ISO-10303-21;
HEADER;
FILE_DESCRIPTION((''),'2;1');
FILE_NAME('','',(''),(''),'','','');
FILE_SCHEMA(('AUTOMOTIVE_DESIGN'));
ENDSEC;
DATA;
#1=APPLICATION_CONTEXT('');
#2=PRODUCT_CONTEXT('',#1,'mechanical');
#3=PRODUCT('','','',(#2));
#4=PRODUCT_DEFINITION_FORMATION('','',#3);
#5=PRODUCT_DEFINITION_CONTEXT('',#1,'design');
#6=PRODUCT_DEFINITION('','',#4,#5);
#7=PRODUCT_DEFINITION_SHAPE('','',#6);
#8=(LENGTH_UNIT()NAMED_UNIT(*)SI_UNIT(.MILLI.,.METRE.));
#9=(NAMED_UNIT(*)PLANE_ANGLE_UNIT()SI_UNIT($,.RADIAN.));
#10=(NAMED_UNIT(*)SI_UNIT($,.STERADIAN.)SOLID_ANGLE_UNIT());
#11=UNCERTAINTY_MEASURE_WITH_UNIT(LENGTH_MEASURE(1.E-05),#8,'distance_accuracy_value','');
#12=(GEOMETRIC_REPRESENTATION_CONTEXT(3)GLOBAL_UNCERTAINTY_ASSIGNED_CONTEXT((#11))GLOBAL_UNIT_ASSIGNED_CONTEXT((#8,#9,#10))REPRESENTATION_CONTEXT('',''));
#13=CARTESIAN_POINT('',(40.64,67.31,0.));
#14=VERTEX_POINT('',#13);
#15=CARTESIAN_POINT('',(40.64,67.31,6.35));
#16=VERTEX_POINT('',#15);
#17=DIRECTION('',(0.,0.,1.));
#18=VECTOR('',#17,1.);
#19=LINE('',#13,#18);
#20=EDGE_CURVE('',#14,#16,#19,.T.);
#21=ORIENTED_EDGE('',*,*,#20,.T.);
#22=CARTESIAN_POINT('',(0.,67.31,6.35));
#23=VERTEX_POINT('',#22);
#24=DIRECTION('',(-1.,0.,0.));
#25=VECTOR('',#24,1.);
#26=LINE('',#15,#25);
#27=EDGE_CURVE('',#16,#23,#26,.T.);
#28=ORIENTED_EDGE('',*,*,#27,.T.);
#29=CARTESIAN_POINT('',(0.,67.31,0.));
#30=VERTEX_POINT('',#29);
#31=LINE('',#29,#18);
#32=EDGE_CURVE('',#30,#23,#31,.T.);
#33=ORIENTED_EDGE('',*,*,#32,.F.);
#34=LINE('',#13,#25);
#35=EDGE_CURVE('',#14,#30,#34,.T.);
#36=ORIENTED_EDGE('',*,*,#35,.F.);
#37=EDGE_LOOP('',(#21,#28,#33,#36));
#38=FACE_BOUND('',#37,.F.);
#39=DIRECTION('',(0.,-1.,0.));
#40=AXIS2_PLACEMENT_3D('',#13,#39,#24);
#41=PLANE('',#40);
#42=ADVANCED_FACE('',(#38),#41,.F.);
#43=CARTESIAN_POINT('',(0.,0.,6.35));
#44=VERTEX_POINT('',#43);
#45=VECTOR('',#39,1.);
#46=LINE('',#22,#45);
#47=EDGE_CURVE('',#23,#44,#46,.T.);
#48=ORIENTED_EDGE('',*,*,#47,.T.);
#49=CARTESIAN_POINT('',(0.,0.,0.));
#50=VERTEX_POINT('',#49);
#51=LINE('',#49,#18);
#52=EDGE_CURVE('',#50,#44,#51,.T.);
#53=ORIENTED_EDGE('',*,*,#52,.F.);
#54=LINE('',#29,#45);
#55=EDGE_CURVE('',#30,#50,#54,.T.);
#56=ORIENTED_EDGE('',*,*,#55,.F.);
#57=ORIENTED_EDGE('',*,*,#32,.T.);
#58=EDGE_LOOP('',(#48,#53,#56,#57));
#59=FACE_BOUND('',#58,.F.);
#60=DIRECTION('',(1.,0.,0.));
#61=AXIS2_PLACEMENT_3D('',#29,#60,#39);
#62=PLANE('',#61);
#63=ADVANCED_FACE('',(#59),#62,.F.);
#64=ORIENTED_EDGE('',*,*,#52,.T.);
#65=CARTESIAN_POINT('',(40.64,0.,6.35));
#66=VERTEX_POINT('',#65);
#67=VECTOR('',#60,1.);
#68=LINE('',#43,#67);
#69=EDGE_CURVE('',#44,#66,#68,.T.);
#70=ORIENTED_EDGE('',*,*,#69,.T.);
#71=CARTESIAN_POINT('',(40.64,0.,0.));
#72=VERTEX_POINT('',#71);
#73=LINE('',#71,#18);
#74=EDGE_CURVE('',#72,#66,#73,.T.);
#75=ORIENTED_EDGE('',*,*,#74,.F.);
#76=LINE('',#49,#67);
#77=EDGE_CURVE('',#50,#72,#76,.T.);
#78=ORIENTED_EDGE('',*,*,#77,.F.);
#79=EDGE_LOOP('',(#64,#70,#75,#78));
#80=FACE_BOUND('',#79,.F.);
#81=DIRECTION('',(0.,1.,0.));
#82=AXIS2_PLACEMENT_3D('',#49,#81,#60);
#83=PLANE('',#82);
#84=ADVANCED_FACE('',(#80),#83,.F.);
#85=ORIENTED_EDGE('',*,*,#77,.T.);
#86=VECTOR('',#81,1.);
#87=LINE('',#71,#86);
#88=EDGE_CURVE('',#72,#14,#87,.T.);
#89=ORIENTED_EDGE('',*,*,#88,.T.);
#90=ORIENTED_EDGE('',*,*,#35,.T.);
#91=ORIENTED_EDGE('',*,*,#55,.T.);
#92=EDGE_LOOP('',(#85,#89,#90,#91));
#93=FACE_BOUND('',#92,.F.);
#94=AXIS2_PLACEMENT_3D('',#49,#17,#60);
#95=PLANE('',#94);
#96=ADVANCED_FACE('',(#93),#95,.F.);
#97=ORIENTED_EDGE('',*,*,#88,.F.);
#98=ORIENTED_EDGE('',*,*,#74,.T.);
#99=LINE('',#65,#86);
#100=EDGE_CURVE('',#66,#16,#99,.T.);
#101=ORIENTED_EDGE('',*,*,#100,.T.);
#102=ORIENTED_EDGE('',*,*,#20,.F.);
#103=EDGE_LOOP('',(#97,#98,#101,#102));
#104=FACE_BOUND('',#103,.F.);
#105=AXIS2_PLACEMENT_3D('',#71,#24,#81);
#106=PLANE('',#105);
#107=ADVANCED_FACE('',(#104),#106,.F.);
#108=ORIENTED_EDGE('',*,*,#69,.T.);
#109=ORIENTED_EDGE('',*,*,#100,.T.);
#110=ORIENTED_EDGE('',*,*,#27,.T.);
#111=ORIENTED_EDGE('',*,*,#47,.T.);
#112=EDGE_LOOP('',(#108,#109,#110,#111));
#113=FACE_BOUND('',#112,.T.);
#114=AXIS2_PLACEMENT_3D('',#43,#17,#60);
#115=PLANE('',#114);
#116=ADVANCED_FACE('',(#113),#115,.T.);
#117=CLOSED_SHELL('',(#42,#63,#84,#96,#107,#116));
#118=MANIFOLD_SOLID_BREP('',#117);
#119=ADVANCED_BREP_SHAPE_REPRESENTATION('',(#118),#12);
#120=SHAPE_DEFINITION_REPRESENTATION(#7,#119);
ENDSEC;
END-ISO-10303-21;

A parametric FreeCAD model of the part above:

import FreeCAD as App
import Part
import Sketcher

V = App.Vector
Q = App.Units.Quantity


def add_polygon(sketch, points):
    """Adds a closed chain of lines whose ends are joined by coincident constraints."""
    first, n = sketch.GeometryCount, len(points)
    for a, b in zip(points, points[1:] + points[:1]):
        sketch.addGeometry(Part.LineSegment(App.Vector(*a, 0), App.Vector(*b, 0)), False)
    for i in range(n):
        sketch.addConstraint(Sketcher.Constraint("Coincident", first + i, 2, first + (i + 1) % n, 1))

doc = App.newDocument("Part")
params = doc.addObject("Spreadsheet::Sheet", "Params")
for row, (alias, value) in enumerate([
    ("sketch1_width", "1.6 in"),
    ("sketch1_height", "2.65 in"),
    ("pad1_length", "0.25 in"),
], start=1):
    params.set(f"A{row}", alias)
    params.set(f"B{row}", "=" + value)
    params.setAlias(f"B{row}", alias)

body = doc.addObject("PartDesign::Body", "Body")

# Sketch on XY plane
sketch1 = doc.addObject("Sketcher::SketchObject", "Sketch")
body.addObject(sketch1)
sketch1.AttachmentSupport = (doc.XY_Plane, [""])
sketch1.MapMode = "FlatFace"
add_polygon(sketch1, [(0, 67.31), (0, 0), (40.64, 0), (40.64, 67.31)])  # lines 0-3
sketch1.addConstraint(Sketcher.Constraint("Vertical", 0))
sketch1.addConstraint(Sketcher.Constraint("Horizontal", 1))
sketch1.addConstraint(Sketcher.Constraint("Vertical", 2))
sketch1.addConstraint(Sketcher.Constraint("Horizontal", 3))
sketch1.addConstraint(Sketcher.Constraint("Coincident", 0, 2, -1, 1))
sketch1.addConstraint(Sketcher.Constraint("DistanceX", 1, 1, 1, 2, Q("1.6 in")))
sketch1.addConstraint(Sketcher.Constraint("DistanceY", 0, 2, 0, 1, Q("2.65 in")))
sketch1.setExpression("Constraints[9]", "Params.sketch1_width")
sketch1.setExpression("Constraints[10]", "Params.sketch1_height")
pad1 = doc.addObject("PartDesign::Pad", "Pad")
body.addObject(pad1)
pad1.Profile = sketch1
pad1.setExpression("Length", "Params.pad1_length")

doc.recompute()
